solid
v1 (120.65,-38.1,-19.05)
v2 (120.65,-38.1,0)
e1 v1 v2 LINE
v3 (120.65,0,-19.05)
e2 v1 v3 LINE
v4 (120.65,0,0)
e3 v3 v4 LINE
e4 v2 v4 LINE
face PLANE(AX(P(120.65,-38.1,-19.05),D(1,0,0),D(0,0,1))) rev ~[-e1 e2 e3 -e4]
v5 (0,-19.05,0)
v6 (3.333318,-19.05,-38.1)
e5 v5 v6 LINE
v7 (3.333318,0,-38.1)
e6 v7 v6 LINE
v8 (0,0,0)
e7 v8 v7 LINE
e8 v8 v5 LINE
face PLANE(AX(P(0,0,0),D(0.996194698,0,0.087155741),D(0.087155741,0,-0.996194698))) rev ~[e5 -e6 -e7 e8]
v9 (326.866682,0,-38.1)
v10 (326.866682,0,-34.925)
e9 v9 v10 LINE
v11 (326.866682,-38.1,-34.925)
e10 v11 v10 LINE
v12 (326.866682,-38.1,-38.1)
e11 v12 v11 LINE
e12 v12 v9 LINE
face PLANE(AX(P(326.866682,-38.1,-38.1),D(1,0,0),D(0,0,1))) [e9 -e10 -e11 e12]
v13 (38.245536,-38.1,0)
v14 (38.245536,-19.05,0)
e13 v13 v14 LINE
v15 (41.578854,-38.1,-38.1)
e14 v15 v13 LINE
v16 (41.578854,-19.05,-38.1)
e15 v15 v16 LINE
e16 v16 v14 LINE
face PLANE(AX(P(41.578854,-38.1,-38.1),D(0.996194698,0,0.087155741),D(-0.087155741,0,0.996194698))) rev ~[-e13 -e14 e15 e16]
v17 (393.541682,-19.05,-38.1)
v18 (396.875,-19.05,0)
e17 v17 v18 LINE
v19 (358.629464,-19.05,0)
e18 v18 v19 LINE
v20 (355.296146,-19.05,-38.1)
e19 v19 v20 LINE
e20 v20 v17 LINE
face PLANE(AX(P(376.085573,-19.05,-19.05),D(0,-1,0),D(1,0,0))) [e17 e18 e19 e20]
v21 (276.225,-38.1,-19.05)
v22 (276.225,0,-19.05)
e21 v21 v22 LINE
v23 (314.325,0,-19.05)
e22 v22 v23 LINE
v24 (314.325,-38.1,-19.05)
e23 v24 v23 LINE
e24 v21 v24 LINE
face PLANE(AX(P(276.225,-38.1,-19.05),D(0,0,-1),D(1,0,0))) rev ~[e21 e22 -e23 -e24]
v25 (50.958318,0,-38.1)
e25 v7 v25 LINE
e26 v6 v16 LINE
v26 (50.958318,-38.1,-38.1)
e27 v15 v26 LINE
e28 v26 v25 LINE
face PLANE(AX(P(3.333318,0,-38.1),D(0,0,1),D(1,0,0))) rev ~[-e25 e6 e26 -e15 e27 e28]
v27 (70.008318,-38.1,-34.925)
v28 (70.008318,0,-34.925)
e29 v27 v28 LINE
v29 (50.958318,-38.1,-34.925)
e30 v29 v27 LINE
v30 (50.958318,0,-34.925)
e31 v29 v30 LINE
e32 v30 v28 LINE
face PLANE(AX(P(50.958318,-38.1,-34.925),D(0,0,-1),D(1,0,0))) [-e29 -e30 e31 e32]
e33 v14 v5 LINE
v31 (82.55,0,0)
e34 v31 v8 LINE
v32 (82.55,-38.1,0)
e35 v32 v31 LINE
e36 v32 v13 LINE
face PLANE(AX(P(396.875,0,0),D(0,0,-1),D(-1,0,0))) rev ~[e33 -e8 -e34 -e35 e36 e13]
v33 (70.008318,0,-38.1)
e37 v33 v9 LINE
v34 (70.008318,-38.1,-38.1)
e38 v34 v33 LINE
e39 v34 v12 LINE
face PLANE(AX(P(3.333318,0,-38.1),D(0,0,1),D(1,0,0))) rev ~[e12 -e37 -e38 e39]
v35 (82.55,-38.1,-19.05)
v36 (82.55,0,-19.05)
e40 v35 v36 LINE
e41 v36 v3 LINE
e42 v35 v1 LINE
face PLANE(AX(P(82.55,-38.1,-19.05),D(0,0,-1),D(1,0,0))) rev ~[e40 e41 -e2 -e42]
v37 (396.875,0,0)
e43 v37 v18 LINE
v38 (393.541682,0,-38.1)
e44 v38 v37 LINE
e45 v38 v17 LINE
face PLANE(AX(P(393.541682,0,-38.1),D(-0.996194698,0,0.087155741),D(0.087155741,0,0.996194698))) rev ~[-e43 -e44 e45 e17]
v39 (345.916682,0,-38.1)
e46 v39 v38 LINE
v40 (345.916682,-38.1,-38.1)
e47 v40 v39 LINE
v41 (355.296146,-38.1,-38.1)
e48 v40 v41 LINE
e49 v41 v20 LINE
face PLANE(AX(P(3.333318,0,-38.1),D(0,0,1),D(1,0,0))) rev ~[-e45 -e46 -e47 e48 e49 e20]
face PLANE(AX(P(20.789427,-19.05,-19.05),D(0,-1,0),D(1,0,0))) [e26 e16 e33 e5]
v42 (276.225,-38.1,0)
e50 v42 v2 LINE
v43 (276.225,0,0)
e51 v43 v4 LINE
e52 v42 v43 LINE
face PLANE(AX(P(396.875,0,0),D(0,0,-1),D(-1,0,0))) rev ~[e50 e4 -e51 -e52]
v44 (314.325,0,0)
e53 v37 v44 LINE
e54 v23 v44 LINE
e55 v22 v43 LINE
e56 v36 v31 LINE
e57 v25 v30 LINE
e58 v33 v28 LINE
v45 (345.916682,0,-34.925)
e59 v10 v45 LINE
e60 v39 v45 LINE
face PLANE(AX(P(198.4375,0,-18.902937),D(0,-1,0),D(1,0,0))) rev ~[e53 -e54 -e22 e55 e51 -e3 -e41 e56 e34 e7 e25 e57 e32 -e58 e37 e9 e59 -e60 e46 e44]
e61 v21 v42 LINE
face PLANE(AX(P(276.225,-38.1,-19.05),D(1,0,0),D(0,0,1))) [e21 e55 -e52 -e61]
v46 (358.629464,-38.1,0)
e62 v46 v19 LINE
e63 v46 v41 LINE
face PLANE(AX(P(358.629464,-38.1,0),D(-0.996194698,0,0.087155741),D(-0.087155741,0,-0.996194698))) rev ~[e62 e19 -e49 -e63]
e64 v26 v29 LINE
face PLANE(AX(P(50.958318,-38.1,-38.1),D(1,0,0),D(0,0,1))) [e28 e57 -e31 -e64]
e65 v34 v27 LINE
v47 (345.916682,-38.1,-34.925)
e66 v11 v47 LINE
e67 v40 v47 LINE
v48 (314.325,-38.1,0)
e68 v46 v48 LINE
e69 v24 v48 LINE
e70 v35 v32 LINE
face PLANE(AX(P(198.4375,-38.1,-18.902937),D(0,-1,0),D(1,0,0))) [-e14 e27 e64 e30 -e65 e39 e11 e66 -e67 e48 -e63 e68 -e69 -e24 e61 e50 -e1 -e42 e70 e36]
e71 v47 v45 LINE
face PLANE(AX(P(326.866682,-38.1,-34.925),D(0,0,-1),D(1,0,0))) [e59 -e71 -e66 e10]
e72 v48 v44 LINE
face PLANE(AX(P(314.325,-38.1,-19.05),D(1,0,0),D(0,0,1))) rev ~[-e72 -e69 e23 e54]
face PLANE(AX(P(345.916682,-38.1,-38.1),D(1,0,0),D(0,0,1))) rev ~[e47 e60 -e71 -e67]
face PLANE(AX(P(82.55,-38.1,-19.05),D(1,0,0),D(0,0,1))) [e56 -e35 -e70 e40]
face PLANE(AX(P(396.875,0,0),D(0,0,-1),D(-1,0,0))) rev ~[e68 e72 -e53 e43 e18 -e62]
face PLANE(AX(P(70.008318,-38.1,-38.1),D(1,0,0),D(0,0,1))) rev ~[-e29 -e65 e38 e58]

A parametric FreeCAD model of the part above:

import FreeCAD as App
import Part
import Sketcher
Q = App.Units.Quantity


def add_polygon(sketch, points):
    """Adds a closed chain of lines whose ends are joined by coincident constraints."""
    first, n = sketch.GeometryCount, len(points)
    for a, b in zip(points, points[1:] + points[:1]):
        sketch.addGeometry(Part.LineSegment(App.Vector(*a, 0), App.Vector(*b, 0)), False)
    for i in range(n):
        sketch.addConstraint(Sketcher.Constraint("Coincident", first + i, 2, first + (i + 1) % n, 1))

doc = App.newDocument("Part")
params = doc.addObject("Spreadsheet::Sheet", "Params")
for row, (alias, value) in enumerate([
    ("sketch1_width", "15.625 in"),
    ("pad1_length", "1.5 in"),
    ("pocket1_length", "0.75 in"),
    ("pocket2_length", "0.75 in"),
    ("sketch4_width", "1.5 in"),
    ("sketch4_height", "0.75 in"),
    ("pocket3_length", "1.5 in"),
    ("sketch5_width", "0.75 in"),
    ("sketch5_height", "0.125 in"),
    ("pocket4_length", "1.5 in"),
    ("sketch6_width", "0.75 in"),
    ("sketch6_height", "0.125 in"),
    ("pocket5_length", "1.5 in"),
    ("sketch7_width", "1.5 in"),
    ("sketch7_height", "0.75 in"),
    ("pocket6_length", "1.5 in"),
], start=1):
    params.set(f"A{row}", alias)
    params.set(f"B{row}", "=" + value)
    params.setAlias(f"B{row}", alias)

body = doc.addObject("PartDesign::Body", "Body")

# Sketch on XZ plane
sketch1 = body.newObject("Sketcher::SketchObject", "Sketch")
sketch1.AttachmentSupport = (doc.getObject("XZ_Plane"), [""])
sketch1.MapMode = "FlatFace"
add_polygon(sketch1, [(397, 0), (0, 0), (3, -38), (394, -38)])  # lines 0-3
sketch1.addConstraint([
    Sketcher.Constraint("Horizontal", 0),
    Sketcher.Constraint("Horizontal", 2),
    Sketcher.Constraint("Coincident", 0, 2, -1, 1),
    Sketcher.Constraint("Equal", 1, 3),
    Sketcher.Constraint("Angle", 1, Q("-85 deg")),
    Sketcher.Constraint("DistanceY", 1, 2, -1, 1, Q("1.5 in")),
    Sketcher.Constraint("DistanceX", 0, 2, 0, 1, Q("15.625 in")),
])
sketch1.setExpression("Constraints[10]", "Params.sketch1_width")
pad1 = body.newObject("PartDesign::Pad", "Pad")
pad1.Profile = sketch1
pad1.setExpression("Length", "Params.pad1_length")

# Sketch on XZ plane
sketch2 = body.newObject("Sketcher::SketchObject", "Sketch001")
sketch2.AttachmentSupport = (doc.getObject("XZ_Plane"), [""])
sketch2.MapMode = "FlatFace"
sketch2.AttachmentOffset = App.Placement(App.Vector(0, 0, 1.5 * 25.4), App.Rotation())
add_polygon(sketch2, [(397, 0), (359, 0), (355, -38), (394, -38)])  # lines 0-3
sketch2.addConstraint([
    Sketcher.Constraint("Horizontal", 0),
    Sketcher.Constraint("Horizontal", 2),
    Sketcher.Constraint("PointOnObject", 0, 2, -1),
    Sketcher.Constraint("Parallel", 1, 3),
    Sketcher.Constraint("Angle", 1, Q("-95 deg")),
    Sketcher.Constraint("DistanceY", 1, 2, -1, 1, Q("1.5 in")),
    Sketcher.Constraint("DistanceX", -1, 1, 3, 2, Q("15.625 in")),
    Sketcher.Constraint("DistanceX", 0, 2, 0, 1, Q("38.245536 mm")),
])
pocket1 = body.newObject("PartDesign::Pocket", "Pocket")
pocket1.Profile = sketch2
pocket1.setExpression("Length", "Params.pocket1_length")

# Sketch on XZ plane
sketch3 = body.newObject("Sketcher::SketchObject", "Sketch002")
sketch3.AttachmentSupport = (doc.getObject("XZ_Plane"), [""])
sketch3.MapMode = "FlatFace"
sketch3.AttachmentOffset = App.Placement(App.Vector(0, 0, 1.5 * 25.4), App.Rotation())
add_polygon(sketch3, [(42, -38), (38, 0), (0, 0), (3, -38)])  # lines 0-3
sketch3.addConstraint([
    Sketcher.Constraint("Horizontal", 1),
    Sketcher.Constraint("Horizontal", 3),
    Sketcher.Constraint("Coincident", 1, 2, -1, 1),
    Sketcher.Constraint("Parallel", 0, 2),
    Sketcher.Constraint("Angle", 0, Q("95 deg")),
    Sketcher.Constraint("DistanceY", 2, 2, -1, 1, Q("1.5 in")),
    Sketcher.Constraint("DistanceX", 1, 2, 1, 1, Q("38.245536 mm")),
])
pocket2 = body.newObject("PartDesign::Pocket", "Pocket001")
pocket2.Profile = sketch3
pocket2.setExpression("Length", "Params.pocket2_length")

# Sketch on XZ plane
sketch4 = body.newObject("Sketcher::SketchObject", "Sketch003")
sketch4.AttachmentSupport = (doc.getObject("XZ_Plane"), [""])
sketch4.MapMode = "FlatFace"
sketch4.AttachmentOffset = App.Placement(App.Vector(0, 0, 1.5 * 25.4), App.Rotation())
add_polygon(sketch4, [(276, 0), (276, -19), (314, -19), (314, 0)])  # lines 0-3
sketch4.addConstraint([
    Sketcher.Constraint("Vertical", 0),
    Sketcher.Constraint("Horizontal", 1),
    Sketcher.Constraint("Vertical", 2),
    Sketcher.Constraint("Horizontal", 3),
    Sketcher.Constraint("PointOnObject", 2, 2, -1),
    Sketcher.Constraint("DistanceX", 1, 1, 1, 2, Q("1.5 in")),
    Sketcher.Constraint("DistanceY", 0, 2, 0, 1, Q("0.75 in")),
    Sketcher.Constraint("DistanceX", -1, 1, 0, 2, Q("10.875 in")),
])
sketch4.setExpression("Constraints[9]", "Params.sketch4_width")
sketch4.setExpression("Constraints[10]", "Params.sketch4_height")
pocket3 = body.newObject("PartDesign::Pocket", "Pocket002")
pocket3.Profile = sketch4
pocket3.setExpression("Length", "Params.pocket3_length")

# Sketch on XZ plane
sketch5 = body.newObject("Sketcher::SketchObject", "Sketch004")
sketch5.AttachmentSupport = (doc.getObject("XZ_Plane"), [""])
sketch5.MapMode = "FlatFace"
sketch5.AttachmentOffset = App.Placement(App.Vector(0, 0, 1.5 * 25.4), App.Rotation())
add_polygon(sketch5, [(51, -34.9), (51, -38.1), (70, -38.1), (70, -34.9)])  # lines 0-3
sketch5.addConstraint([
    Sketcher.Constraint("Vertical", 0),
    Sketcher.Constraint("Horizontal", 1),
    Sketcher.Constraint("Vertical", 2),
    Sketcher.Constraint("Horizontal", 3),
    Sketcher.Constraint("DistanceX", 1, 1, 1, 2, Q("0.75 in")),
    Sketcher.Constraint("DistanceY", 0, 2, -1, 1, Q("1.5 in")),
    Sketcher.Constraint("DistanceY", 0, 2, 0, 1, Q("0.125 in")),
    Sketcher.Constraint("DistanceX", -1, 1, 1, 2, Q("70.008318 mm")),
])
sketch5.setExpression("Constraints[8]", "Params.sketch5_width")
sketch5.setExpression("Constraints[10]", "Params.sketch5_height")
pocket4 = body.newObject("PartDesign::Pocket", "Pocket003")
pocket4.Profile = sketch5
pocket4.setExpression("Length", "Params.pocket4_length")

# Sketch on XZ plane
sketch6 = body.newObject("Sketcher::SketchObject", "Sketch005")
sketch6.AttachmentSupport = (doc.getObject("XZ_Plane"), [""])
sketch6.MapMode = "FlatFace"
sketch6.AttachmentOffset = App.Placement(App.Vector(0, 0, 1.5 * 25.4), App.Rotation())
add_polygon(sketch6, [(326.9, -34.9), (326.9, -38.1), (345.9, -38.1), (345.9, -34.9)])  # lines 0-3
sketch6.addConstraint([
    Sketcher.Constraint("Vertical", 0),
    Sketcher.Constraint("Horizontal", 1),
    Sketcher.Constraint("Vertical", 2),
    Sketcher.Constraint("Horizontal", 3),
    Sketcher.Constraint("DistanceX", 1, 1, 1, 2, Q("0.75 in")),
    Sketcher.Constraint("DistanceY", 0, 2, -1, 1, Q("1.5 in")),
    Sketcher.Constraint("DistanceY", 0, 2, 0, 1, Q("0.125 in")),
    Sketcher.Constraint("DistanceX", -1, 1, 1, 2, Q("345.916682 mm")),
])
sketch6.setExpression("Constraints[8]", "Params.sketch6_width")
sketch6.setExpression("Constraints[10]", "Params.sketch6_height")
pocket5 = body.newObject("PartDesign::Pocket", "Pocket004")
pocket5.Profile = sketch6
pocket5.setExpression("Length", "Params.pocket5_length")

# Sketch on XZ plane
sketch7 = body.newObject("Sketcher::SketchObject", "Sketch006")
sketch7.AttachmentSupport = (doc.getObject("XZ_Plane"), [""])
sketch7.MapMode = "FlatFace"
sketch7.AttachmentOffset = App.Placement(App.Vector(0, 0, 1.5 * 25.4), App.Rotation())
add_polygon(sketch7, [(83, 0), (83, -19), (121, -19), (121, 0)])  # lines 0-3
sketch7.addConstraint([
    Sketcher.Constraint("Vertical", 0),
    Sketcher.Constraint("Horizontal", 1),
    Sketcher.Constraint("Vertical", 2),
    Sketcher.Constraint("Horizontal", 3),
    Sketcher.Constraint("PointOnObject", 2, 2, -1),
    Sketcher.Constraint("DistanceX", 1, 1, 1, 2, Q("1.5 in")),
    Sketcher.Constraint("DistanceY", 0, 2, 0, 1, Q("0.75 in")),
    Sketcher.Constraint("DistanceX", -1, 1, 0, 2, Q("3.25 in")),
])
sketch7.setExpression("Constraints[9]", "Params.sketch7_width")
sketch7.setExpression("Constraints[10]", "Params.sketch7_height")
pocket6 = body.newObject("PartDesign::Pocket", "Pocket005")
pocket6.Profile = sketch7
pocket6.setExpression("Length", "Params.pocket6_length")

doc.recompute()
